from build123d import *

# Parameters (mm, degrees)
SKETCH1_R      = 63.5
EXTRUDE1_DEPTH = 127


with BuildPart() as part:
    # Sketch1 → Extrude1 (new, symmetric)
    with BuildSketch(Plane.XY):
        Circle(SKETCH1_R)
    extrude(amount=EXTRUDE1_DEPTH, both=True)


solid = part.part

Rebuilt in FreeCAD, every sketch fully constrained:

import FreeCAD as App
import Part
import Sketcher

V = App.Vector
Q = App.Units.Quantity

doc = App.newDocument("Part")
body = doc.addObject("PartDesign::Body", "Body")

# Sketch on XY plane
sketch1 = body.newObject("Sketcher::SketchObject", "Sketch")
sketch1.AttachmentSupport = (doc.getObject("XY_Plane"), [""])
sketch1.MapMode = "FlatFace"
sketch1.addGeometry(Part.Circle(V(0, 0, 0), V(0, 0, 1), 64), False)
sketch1.addConstraint([
    Sketcher.Constraint("Coincident", 0, 3, -1, 1),
    Sketcher.Constraint("Diameter", 0, Q("5 in")),
])
pad1 = body.newObject("PartDesign::Pad", "Pad")
pad1.Profile = sketch1
pad1.Length = Q("10 in")
pad1.Midplane = True

doc.recompute()
